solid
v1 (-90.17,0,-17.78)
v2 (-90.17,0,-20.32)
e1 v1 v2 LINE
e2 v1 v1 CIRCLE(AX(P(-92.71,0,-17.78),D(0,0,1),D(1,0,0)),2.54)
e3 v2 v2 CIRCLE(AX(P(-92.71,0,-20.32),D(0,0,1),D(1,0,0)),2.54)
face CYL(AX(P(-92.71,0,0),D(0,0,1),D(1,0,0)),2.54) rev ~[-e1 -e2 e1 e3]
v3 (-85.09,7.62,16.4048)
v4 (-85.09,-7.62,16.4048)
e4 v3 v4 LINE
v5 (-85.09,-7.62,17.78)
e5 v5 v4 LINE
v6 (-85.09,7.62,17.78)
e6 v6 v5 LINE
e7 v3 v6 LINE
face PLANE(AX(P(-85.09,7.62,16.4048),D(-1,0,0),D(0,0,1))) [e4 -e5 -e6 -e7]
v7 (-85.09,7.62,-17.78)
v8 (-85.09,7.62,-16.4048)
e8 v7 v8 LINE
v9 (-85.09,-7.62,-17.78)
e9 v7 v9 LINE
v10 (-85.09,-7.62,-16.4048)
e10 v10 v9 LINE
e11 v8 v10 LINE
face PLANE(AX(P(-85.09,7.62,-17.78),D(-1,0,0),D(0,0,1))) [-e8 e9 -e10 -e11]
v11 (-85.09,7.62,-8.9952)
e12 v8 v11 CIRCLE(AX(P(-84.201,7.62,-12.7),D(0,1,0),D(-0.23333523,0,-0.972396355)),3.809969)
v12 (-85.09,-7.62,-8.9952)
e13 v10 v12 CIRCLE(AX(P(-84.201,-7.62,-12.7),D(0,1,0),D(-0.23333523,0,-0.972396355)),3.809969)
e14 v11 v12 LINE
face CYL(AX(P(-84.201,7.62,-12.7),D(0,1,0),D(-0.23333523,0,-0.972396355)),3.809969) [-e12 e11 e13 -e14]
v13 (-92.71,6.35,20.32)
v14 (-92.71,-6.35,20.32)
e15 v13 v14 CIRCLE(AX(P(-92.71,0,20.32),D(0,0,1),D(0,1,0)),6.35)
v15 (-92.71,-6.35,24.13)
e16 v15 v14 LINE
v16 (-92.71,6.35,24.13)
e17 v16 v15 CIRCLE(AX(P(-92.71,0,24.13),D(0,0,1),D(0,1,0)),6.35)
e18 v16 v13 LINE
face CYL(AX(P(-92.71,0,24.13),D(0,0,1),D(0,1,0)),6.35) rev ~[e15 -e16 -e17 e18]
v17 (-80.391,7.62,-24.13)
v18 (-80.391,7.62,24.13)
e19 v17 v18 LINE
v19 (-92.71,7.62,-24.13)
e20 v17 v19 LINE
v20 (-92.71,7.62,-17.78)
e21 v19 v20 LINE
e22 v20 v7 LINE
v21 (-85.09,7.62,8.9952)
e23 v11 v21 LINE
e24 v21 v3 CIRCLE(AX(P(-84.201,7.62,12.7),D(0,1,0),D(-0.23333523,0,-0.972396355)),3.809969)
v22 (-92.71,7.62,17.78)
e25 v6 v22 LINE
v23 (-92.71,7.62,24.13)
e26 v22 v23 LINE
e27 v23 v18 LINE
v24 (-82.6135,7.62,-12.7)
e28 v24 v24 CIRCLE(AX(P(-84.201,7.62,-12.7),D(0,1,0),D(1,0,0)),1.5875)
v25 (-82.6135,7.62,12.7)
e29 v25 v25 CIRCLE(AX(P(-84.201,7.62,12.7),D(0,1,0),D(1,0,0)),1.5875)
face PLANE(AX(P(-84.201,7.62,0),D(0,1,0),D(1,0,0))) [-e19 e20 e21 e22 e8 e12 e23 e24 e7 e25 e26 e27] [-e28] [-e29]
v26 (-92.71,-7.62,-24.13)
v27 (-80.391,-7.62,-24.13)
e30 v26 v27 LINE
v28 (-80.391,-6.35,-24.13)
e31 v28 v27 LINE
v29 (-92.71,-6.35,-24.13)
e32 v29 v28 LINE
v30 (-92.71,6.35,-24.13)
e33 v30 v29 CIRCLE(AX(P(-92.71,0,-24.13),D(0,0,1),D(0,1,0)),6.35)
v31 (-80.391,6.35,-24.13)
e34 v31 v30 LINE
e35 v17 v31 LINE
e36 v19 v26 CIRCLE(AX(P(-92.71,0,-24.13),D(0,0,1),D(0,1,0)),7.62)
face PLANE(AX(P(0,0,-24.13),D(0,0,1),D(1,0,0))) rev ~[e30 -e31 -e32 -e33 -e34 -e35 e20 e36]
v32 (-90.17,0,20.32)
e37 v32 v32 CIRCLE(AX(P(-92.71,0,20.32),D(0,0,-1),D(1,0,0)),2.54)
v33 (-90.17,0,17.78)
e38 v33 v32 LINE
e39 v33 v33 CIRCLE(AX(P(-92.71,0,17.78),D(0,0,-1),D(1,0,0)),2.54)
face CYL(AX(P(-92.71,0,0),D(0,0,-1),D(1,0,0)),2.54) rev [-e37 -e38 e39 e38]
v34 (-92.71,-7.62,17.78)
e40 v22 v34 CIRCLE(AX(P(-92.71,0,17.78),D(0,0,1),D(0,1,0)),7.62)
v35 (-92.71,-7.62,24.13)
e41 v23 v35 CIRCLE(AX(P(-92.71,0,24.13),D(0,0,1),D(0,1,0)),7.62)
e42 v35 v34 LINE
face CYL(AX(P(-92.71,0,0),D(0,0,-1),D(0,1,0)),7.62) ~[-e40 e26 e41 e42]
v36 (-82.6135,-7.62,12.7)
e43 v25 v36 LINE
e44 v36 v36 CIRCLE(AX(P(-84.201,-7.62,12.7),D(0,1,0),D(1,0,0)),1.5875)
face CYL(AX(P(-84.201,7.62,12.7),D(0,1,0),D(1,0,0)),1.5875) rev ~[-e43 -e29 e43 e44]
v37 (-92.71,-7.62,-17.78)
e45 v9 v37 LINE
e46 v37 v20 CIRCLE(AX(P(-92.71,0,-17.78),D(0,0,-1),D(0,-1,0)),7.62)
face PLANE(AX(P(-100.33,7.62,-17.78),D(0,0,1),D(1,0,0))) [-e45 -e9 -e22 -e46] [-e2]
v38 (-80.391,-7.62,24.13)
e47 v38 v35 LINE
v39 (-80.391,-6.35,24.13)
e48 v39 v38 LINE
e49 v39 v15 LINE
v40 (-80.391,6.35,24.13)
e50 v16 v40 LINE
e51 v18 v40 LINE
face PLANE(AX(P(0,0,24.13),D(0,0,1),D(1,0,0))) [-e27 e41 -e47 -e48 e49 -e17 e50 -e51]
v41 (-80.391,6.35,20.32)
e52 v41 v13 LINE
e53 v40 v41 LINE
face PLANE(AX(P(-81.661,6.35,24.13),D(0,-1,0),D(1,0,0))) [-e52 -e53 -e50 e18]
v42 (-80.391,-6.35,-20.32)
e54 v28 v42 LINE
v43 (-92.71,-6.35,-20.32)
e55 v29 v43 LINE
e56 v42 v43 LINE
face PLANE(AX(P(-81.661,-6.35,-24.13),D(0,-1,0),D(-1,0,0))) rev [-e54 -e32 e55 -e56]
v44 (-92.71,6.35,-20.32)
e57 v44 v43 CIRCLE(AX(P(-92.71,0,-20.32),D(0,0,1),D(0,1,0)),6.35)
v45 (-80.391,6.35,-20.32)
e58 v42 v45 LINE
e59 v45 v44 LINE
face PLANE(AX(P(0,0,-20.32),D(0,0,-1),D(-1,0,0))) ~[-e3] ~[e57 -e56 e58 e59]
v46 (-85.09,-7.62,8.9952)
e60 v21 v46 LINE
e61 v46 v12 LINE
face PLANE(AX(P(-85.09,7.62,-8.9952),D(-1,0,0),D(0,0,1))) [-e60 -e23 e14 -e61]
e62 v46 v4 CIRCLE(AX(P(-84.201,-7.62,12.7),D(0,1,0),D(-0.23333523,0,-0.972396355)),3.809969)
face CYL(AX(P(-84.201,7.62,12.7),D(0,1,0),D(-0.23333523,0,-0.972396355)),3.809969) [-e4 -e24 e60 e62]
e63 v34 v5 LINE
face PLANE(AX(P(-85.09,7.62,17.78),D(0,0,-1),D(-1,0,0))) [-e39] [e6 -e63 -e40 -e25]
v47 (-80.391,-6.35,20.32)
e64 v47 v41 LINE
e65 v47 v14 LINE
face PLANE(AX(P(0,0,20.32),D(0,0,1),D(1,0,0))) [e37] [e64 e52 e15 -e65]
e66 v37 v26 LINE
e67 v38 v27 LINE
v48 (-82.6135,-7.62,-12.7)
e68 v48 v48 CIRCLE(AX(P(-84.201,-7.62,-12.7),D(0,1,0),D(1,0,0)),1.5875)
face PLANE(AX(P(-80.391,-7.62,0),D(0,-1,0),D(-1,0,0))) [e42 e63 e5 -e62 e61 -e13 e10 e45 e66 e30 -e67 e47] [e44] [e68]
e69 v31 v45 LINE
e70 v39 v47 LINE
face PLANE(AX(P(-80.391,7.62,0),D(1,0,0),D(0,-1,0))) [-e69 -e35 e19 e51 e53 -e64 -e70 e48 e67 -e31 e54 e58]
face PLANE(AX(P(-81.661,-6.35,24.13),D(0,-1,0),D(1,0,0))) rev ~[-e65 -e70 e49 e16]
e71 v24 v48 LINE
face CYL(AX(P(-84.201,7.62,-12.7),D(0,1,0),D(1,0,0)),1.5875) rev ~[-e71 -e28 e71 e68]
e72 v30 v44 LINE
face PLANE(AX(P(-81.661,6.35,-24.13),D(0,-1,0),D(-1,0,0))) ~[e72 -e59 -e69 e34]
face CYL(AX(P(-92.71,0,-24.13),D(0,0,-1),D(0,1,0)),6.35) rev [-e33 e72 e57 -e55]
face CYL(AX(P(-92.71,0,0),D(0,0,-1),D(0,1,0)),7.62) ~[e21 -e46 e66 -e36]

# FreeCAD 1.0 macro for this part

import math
import FreeCAD as App
import Part
import Sketcher

V = App.Vector
Q = App.Units.Quantity

doc = App.newDocument("Part")
params = doc.addObject("Spreadsheet::Sheet", "Params")
for row, (alias, value) in enumerate([
    ("sketch1_radius", "0.3 in"),
    ("sketch1_width", "0.485 in"),
    ("pad1_length", "1.9 in"),
    ("sketch2_diameter", "0.125 in"),
    ("sketch3_width", "0.6 in"),
    ("sketch3_height", "1.4 in"),
    ("sketch3_radius", "0.15 in"),
    ("sketch4_diameter", "0.2 in"),
    ("pocket3_length", "1.7 in"),
    ("sketch5_radius", "0.25 in"),
    ("sketch5_width", "0.485 in"),
    ("pocket4_length", "0.15 in"),
], start=1):
    params.set(f"A{row}", alias)
    params.set(f"B{row}", "=" + value)
    params.setAlias(f"B{row}", alias)

body = doc.addObject("PartDesign::Body", "Body")

# Sketch on XY plane
sketch1 = body.newObject("Sketcher::SketchObject", "Sketch")
sketch1.AttachmentSupport = (doc.getObject("XY_Plane"), [""])
sketch1.MapMode = "FlatFace"
sketch1.addGeometry(Part.LineSegment(V(-80, -8, 0), V(-80, 8, 0)), False)
sketch1.addGeometry(Part.LineSegment(V(-80, 8, 0), V(-93, 8, 0)), False)
sketch1.addGeometry(Part.ArcOfCircle(Part.Circle(V(-93, 0, 0), V(0, 0, 1), 8), math.radians(90), math.radians(270)), False)
sketch1.addGeometry(Part.LineSegment(V(-93, -8, 0), V(-80, -8, 0)), False)
sketch1.addConstraint(Sketcher.Constraint("Coincident", 0, 2, 1, 1))
sketch1.addConstraint(Sketcher.Constraint("Tangent", 1, 2, 2, 1))
sketch1.addConstraint(Sketcher.Constraint("Tangent", 2, 2, 3, 1))
sketch1.addConstraint(Sketcher.Constraint("Coincident", 3, 2, 0, 1))
sketch1.addConstraint(Sketcher.Constraint("Vertical", 0))
sketch1.addConstraint(Sketcher.Constraint("Horizontal", 1))
sketch1.addConstraint(Sketcher.Constraint("Horizontal", 3))
sketch1.addConstraint(Sketcher.Constraint("PointOnObject", 2, 3, -1))
sketch1.addConstraint(Sketcher.Constraint("Radius", 2, Q("0.3 in")))
sketch1.addConstraint(Sketcher.Constraint("DistanceX", 1, 2, 1, 1, Q("0.485 in")))
sketch1.addConstraint(Sketcher.Constraint("DistanceX", 2, 3, -1, 1, Q("3.65 in")))
sketch1.setExpression("Constraints[8]", "Params.sketch1_radius")
sketch1.setExpression("Constraints[9]", "Params.sketch1_width")
pad1 = body.newObject("PartDesign::Pad", "Pad")
pad1.Profile = sketch1
pad1.setExpression("Length", "Params.pad1_length")
pad1.Midplane = True

# Sketch on XZ plane
sketch2 = body.newObject("Sketcher::SketchObject", "Sketch001")
sketch2.AttachmentSupport = (doc.getObject("XZ_Plane"), [""])
sketch2.MapMode = "FlatFace"
sketch2.AttachmentOffset = App.Placement(V(0, 0, -0.3 * 25.4), App.Rotation())
sketch2.addGeometry(Part.Circle(V(-84.2, 12.7, 0), V(0, 0, 1), 1.6), False)
sketch2.addGeometry(Part.Circle(V(-84.2, -12.7, 0), V(0, 0, 1), 1.6), False)
sketch2.addConstraint(Sketcher.Constraint("Equal", 0, 1))
sketch2.addConstraint(Sketcher.Constraint("Symmetric", 0, 3, 1, 3, -1))
sketch2.addConstraint(Sketcher.Constraint("Diameter", 0, Q("0.125 in")))
sketch2.addConstraint(Sketcher.Constraint("DistanceY", 1, 3, 0, 3, Q("1 in")))
sketch2.addConstraint(Sketcher.Constraint("DistanceX", 0, 3, -1, 1, Q("3.315 in")))
sketch2.setExpression("Constraints[2]", "Params.sketch2_diameter")
pocket1 = body.newObject("PartDesign::Pocket", "Pocket")
pocket1.Profile = sketch2
pocket1.Type = "ThroughAll"
pocket1.Reversed = True

# Sketch on XZ plane
sketch3 = body.newObject("Sketcher::SketchObject", "Sketch002")
sketch3.AttachmentSupport = (doc.getObject("XZ_Plane"), [""])
sketch3.MapMode = "FlatFace"
sketch3.AttachmentOffset = App.Placement(V(0, 0, -0.3 * 25.4), App.Rotation())
sketch3.addGeometry(Part.LineSegment(V(-85.1, -17.8, 0), V(-100.3, -17.8, 0)), False)
sketch3.addGeometry(Part.LineSegment(V(-100.3, -17.8, 0), V(-100.3, 17.8, 0)), False)
sketch3.addGeometry(Part.LineSegment(V(-100.3, 17.8, 0), V(-85.1, 17.8, 0)), False)
sketch3.addGeometry(Part.LineSegment(V(-85.1, 17.8, 0), V(-85.1, 16.4, 0)), False)
sketch3.addGeometry(Part.ArcOfCircle(Part.Circle(V(-84.2, 12.7, 0), V(0, 0, 1), 3.8), math.radians(103), math.radians(257)), False)
sketch3.addGeometry(Part.LineSegment(V(-85.1, 9, 0), V(-85.1, -9, 0)), False)
sketch3.addGeometry(Part.ArcOfCircle(Part.Circle(V(-84.2, -12.7, 0), V(0, 0, 1), 3.8), math.radians(103), math.radians(257)), False)
sketch3.addGeometry(Part.LineSegment(V(-85.1, -16.4, 0), V(-85.1, -17.8, 0)), False)
sketch3.addConstraint(Sketcher.Constraint("Coincident", 0, 2, 1, 1))
sketch3.addConstraint(Sketcher.Constraint("Coincident", 1, 2, 2, 1))
sketch3.addConstraint(Sketcher.Constraint("Coincident", 2, 2, 3, 1))
sketch3.addConstraint(Sketcher.Constraint("Coincident", 3, 2, 4, 1))
sketch3.addConstraint(Sketcher.Constraint("Coincident", 4, 2, 5, 1))
sketch3.addConstraint(Sketcher.Constraint("Coincident", 5, 2, 6, 1))
sketch3.addConstraint(Sketcher.Constraint("Coincident", 6, 2, 7, 1))
sketch3.addConstraint(Sketcher.Constraint("Coincident", 7, 2, 0, 1))
sketch3.addConstraint(Sketcher.Constraint("Horizontal", 0))
sketch3.addConstraint(Sketcher.Constraint("Vertical", 1))
sketch3.addConstraint(Sketcher.Constraint("Horizontal", 2))
sketch3.addConstraint(Sketcher.Constraint("Vertical", 3))
sketch3.addConstraint(Sketcher.Constraint("Vertical", 5))
sketch3.addConstraint(Sketcher.Constraint("Vertical", 7))
sketch3.addConstraint(Sketcher.Constraint("Equal", 4, 6))
sketch3.addConstraint(Sketcher.Constraint("Symmetric", 4, 3, 6, 3, -1))
sketch3.addConstraint(Sketcher.Constraint("Symmetric", 2, 2, 7, 2, -1))
sketch3.addConstraint(Sketcher.Constraint("Vertical", 3, 2, 4, 2))
sketch3.addConstraint(Sketcher.Constraint("DistanceX", 0, 2, 0, 1, Q("0.6 in")))
sketch3.addConstraint(Sketcher.Constraint("DistanceY", 1, 1, 1, 2, Q("1.4 in")))
sketch3.addConstraint(Sketcher.Constraint("Radius", 4, Q("0.15 in")))
sketch3.addConstraint(Sketcher.Constraint("DistanceY", 6, 3, 4, 3, Q("1 in")))
sketch3.addConstraint(Sketcher.Constraint("DistanceX", 0, 2, -1, 1, Q("3.95 in")))
sketch3.addConstraint(Sketcher.Constraint("DistanceX", 4, 3, -1, 1, Q("3.315 in")))
sketch3.setExpression("Constraints[18]", "Params.sketch3_width")
sketch3.setExpression("Constraints[19]", "Params.sketch3_height")
sketch3.setExpression("Constraints[20]", "Params.sketch3_radius")
pocket2 = body.newObject("PartDesign::Pocket", "Pocket001")
pocket2.Profile = sketch3
pocket2.Type = "ThroughAll"
pocket2.Reversed = True

# Sketch on XY plane
sketch4 = body.newObject("Sketcher::SketchObject", "Sketch003")
sketch4.AttachmentSupport = (doc.getObject("XY_Plane"), [""])
sketch4.MapMode = "FlatFace"
sketch4.addGeometry(Part.Circle(V(-92.7, 0, 0), V(0, 0, 1), 2.5), False)
sketch4.addConstraint(Sketcher.Constraint("PointOnObject", 0, 3, -1))
sketch4.addConstraint(Sketcher.Constraint("Diameter", 0, Q("0.2 in")))
sketch4.addConstraint(Sketcher.Constraint("DistanceX", 0, 3, -1, 1, Q("3.65 in")))
sketch4.setExpression("Constraints[1]", "Params.sketch4_diameter")
pocket3 = body.newObject("PartDesign::Pocket", "Pocket002")
pocket3.Profile = sketch4
pocket3.setExpression("Length", "Params.pocket3_length")
pocket3.Midplane = True

# Sketch on XY plane
sketch5 = body.newObject("Sketcher::SketchObject", "Sketch004")
sketch5.AttachmentSupport = (doc.getObject("XY_Plane"), [""])
sketch5.MapMode = "FlatFace"
sketch5.AttachmentOffset = App.Placement(V(0, 0, 0.95 * 25.4), App.Rotation())
sketch5.addGeometry(Part.LineSegment(V(-93, -6, 0), V(-80, -6, 0)), False)
sketch5.addGeometry(Part.LineSegment(V(-80, -6, 0), V(-80, 6, 0)), False)
sketch5.addGeometry(Part.LineSegment(V(-80, 6, 0), V(-93, 6, 0)), False)
sketch5.addGeometry(Part.ArcOfCircle(Part.Circle(V(-93, 0, 0), V(0, 0, 1), 6), math.radians(90), math.radians(270)), False)
sketch5.addConstraint(Sketcher.Constraint("Coincident", 0, 2, 1, 1))
sketch5.addConstraint(Sketcher.Constraint("Coincident", 1, 2, 2, 1))
sketch5.addConstraint(Sketcher.Constraint("Tangent", 2, 2, 3, 1))
sketch5.addConstraint(Sketcher.Constraint("Tangent", 3, 2, 0, 1))
sketch5.addConstraint(Sketcher.Constraint("Horizontal", 0))
sketch5.addConstraint(Sketcher.Constraint("Vertical", 1))
sketch5.addConstraint(Sketcher.Constraint("Horizontal", 2))
sketch5.addConstraint(Sketcher.Constraint("PointOnObject", 3, 3, -1))
sketch5.addConstraint(Sketcher.Constraint("Radius", 3, Q("0.25 in")))
sketch5.addConstraint(Sketcher.Constraint("DistanceX", 0, 1, 0, 2, Q("0.485 in")))
sketch5.addConstraint(Sketcher.Constraint("DistanceX", 3, 3, -1, 1, Q("3.65 in")))
sketch5.setExpression("Constraints[8]", "Params.sketch5_radius")
sketch5.setExpression("Constraints[9]", "Params.sketch5_width")
pocket4 = body.newObject("PartDesign::Pocket", "Pocket003")
pocket4.Profile = sketch5
pocket4.setExpression("Length", "Params.pocket4_length")
doc.recompute()

mirrored = body.newObject("PartDesign::Mirrored", "Mirrored")
mirrored.Originals = [pocket4]
mirrored.MirrorPlane = (doc.getObject("XY_Plane"), [""])
body.Tip = mirrored

doc.recompute()
